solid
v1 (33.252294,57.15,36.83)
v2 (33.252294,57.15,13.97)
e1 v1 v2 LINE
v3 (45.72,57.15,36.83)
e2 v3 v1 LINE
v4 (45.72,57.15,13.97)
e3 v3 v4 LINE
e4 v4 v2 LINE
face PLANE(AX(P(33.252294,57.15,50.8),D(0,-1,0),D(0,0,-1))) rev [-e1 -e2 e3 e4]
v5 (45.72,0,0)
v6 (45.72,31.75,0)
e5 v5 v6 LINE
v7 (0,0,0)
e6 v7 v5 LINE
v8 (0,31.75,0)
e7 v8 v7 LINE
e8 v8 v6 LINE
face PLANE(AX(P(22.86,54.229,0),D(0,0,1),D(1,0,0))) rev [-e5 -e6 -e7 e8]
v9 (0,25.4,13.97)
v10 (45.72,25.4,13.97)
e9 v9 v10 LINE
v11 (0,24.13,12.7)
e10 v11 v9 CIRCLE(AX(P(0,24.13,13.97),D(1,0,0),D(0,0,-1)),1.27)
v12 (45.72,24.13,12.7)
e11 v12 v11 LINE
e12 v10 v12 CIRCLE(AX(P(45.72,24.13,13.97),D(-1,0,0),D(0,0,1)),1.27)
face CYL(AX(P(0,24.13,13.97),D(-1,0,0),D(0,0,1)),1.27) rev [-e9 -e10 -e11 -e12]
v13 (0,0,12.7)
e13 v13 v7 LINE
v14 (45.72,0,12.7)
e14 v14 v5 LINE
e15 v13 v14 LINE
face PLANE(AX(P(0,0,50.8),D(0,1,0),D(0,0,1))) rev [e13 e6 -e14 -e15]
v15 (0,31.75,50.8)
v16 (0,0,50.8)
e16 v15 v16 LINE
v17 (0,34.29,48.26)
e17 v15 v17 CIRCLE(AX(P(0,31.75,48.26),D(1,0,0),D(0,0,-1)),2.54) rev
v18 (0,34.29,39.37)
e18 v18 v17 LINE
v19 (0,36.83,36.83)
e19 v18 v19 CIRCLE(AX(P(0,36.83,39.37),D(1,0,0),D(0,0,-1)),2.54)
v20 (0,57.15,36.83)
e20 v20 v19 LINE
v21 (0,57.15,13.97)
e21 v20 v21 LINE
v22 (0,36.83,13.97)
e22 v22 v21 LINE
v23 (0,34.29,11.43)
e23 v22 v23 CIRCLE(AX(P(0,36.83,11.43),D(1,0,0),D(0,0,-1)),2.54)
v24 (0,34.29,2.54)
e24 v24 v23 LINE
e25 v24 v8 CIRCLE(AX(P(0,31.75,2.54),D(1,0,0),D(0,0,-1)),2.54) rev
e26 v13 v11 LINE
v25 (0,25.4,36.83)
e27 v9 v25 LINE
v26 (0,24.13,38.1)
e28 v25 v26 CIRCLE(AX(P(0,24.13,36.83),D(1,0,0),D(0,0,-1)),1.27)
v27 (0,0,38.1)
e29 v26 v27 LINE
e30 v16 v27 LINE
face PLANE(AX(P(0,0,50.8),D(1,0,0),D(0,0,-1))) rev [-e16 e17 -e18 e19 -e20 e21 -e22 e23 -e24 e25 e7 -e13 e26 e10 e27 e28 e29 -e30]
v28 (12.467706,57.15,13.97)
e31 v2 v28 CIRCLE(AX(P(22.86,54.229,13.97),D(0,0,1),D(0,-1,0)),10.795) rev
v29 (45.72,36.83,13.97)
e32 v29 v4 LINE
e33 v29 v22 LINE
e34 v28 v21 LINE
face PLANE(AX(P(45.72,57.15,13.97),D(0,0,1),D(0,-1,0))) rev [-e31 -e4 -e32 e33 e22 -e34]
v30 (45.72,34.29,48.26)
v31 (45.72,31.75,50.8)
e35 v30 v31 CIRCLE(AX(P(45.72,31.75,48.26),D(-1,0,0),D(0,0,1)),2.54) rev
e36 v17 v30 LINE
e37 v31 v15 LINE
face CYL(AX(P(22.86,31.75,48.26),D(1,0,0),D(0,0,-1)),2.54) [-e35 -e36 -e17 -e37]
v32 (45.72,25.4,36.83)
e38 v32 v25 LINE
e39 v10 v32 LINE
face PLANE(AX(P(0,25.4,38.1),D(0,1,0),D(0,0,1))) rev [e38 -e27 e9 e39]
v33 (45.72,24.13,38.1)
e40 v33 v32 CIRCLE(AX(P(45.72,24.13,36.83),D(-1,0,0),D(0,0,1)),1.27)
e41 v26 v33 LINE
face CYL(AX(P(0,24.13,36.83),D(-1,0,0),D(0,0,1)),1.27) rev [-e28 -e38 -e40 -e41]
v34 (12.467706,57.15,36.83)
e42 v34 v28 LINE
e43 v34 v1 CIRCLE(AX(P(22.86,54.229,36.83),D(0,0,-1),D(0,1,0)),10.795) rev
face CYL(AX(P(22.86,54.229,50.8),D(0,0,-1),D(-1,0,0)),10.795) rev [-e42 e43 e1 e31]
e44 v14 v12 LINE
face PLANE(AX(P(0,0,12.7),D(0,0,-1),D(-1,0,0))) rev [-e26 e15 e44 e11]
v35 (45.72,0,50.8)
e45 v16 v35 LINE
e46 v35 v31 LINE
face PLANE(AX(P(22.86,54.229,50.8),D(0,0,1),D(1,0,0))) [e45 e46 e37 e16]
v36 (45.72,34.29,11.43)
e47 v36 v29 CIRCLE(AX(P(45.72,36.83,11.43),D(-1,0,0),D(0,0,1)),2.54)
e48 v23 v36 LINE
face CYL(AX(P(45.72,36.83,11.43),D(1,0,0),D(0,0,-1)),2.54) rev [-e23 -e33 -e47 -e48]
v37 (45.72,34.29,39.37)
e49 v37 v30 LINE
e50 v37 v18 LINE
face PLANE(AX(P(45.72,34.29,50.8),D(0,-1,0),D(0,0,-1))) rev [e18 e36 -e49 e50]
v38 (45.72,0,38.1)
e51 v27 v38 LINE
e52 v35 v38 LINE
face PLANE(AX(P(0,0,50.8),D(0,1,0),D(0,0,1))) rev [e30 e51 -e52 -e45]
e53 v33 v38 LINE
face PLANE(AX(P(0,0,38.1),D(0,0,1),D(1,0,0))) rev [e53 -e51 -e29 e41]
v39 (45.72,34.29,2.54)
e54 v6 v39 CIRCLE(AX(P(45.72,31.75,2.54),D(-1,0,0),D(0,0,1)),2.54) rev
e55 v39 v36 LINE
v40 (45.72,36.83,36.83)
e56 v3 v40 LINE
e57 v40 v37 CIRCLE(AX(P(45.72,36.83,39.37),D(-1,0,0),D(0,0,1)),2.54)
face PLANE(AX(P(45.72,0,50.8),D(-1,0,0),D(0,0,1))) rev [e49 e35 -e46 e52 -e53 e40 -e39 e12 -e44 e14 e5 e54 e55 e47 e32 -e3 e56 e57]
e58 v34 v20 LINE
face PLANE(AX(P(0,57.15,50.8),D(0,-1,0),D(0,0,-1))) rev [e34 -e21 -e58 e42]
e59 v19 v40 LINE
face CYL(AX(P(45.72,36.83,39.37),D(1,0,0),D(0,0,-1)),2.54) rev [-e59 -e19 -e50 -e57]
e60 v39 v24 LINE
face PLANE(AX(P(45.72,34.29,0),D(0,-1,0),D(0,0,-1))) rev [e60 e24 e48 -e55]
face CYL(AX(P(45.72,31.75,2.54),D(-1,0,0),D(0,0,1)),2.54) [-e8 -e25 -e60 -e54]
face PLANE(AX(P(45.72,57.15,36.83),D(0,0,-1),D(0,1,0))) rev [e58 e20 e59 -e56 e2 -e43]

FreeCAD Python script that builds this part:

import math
import FreeCAD as App
import Part
import Sketcher
Q = App.Units.Quantity


def edges_at(feature, points):
    """Names of the edges that pass closest to the given points."""
    edges = feature.Shape.Edges
    near = lambda p: min(range(len(edges)), key=lambda i: edges[i].distToShape(Part.Vertex(*p))[0])
    return sorted({f"Edge{near(p) + 1}" for p in points})

doc = App.newDocument("Part")
body = doc.addObject("PartDesign::Body", "Body")

# Sketch on XY plane
sketch1 = body.newObject("Sketcher::SketchObject", "Sketch")
sketch1.AttachmentSupport = (doc.getObject("XY_Plane"), [""])
sketch1.MapMode = "FlatFace"
sketch1.addGeometry(Part.LineSegment(App.Vector(45.72, 57.15, 0), App.Vector(33.252294, 57.15, 0)), False)
sketch1.addGeometry(Part.ArcOfCircle(Part.Circle(App.Vector(22.86, 54.229, 0), App.Vector(0, 0, 1), 10.795), math.radians(164.300727), math.radians(375.699273)), False)
sketch1.addGeometry(Part.LineSegment(App.Vector(12.467706, 57.15, 0), App.Vector(0, 57.15, 0)), False)
sketch1.addGeometry(Part.LineSegment(App.Vector(0, 57.15, 0), App.Vector(0, 0, 0)), False)
sketch1.addGeometry(Part.LineSegment(App.Vector(0, 0, 0), App.Vector(45.72, 0, 0)), False)
sketch1.addGeometry(Part.LineSegment(App.Vector(45.72, 0, 0), App.Vector(45.72, 57.15, 0)), False)
sketch1.addConstraint(Sketcher.Constraint("Coincident", 0, 2, 1, 2))
sketch1.addConstraint(Sketcher.Constraint("Coincident", 1, 1, 2, 1))
sketch1.addConstraint(Sketcher.Constraint("Coincident", 2, 2, 3, 1))
sketch1.addConstraint(Sketcher.Constraint("Coincident", 3, 2, 4, 1))
sketch1.addConstraint(Sketcher.Constraint("Coincident", 4, 2, 5, 1))
sketch1.addConstraint(Sketcher.Constraint("Coincident", 5, 2, 0, 1))
sketch1.addConstraint(Sketcher.Constraint("Horizontal", 0))
sketch1.addConstraint(Sketcher.Constraint("Horizontal", 2))
sketch1.addConstraint(Sketcher.Constraint("Vertical", 3))
sketch1.addConstraint(Sketcher.Constraint("Horizontal", 4))
sketch1.addConstraint(Sketcher.Constraint("Vertical", 5))
sketch1.addConstraint(Sketcher.Constraint("Coincident", 3, 2, -1, 1))
sketch1.addConstraint(Sketcher.Constraint("Horizontal", 0, 2, 1, 1))
sketch1.addConstraint(Sketcher.Constraint("Equal", 0, 2))
sketch1.addConstraint(Sketcher.Constraint("DistanceX", 4, 1, 4, 2, Q("1.8 in")))
sketch1.addConstraint(Sketcher.Constraint("Radius", 1, Q("0.425 in")))
sketch1.addConstraint(Sketcher.Constraint("DistanceY", 3, 2, 3, 1, Q("2.25 in")))
sketch1.addConstraint(Sketcher.Constraint("DistanceY", -1, 1, 1, 3, Q("2.135 in")))
pad1 = body.newObject("PartDesign::Pad", "Pad")
pad1.Profile = sketch1
pad1.Length = Q("2 in")

# Sketch on YZ plane
sketch2 = body.newObject("Sketcher::SketchObject", "Sketch001")
sketch2.AttachmentSupport = (doc.getObject("YZ_Plane"), [""])
sketch2.MapMode = "FlatFace"
sketch2.AttachmentOffset = App.Placement(App.Vector(0, 0, 1.8 * 25.4), App.Rotation())
sketch2.addGeometry(Part.LineSegment(App.Vector(25.4, 38.1, 0), App.Vector(0, 38.1, 0)), False)
sketch2.addGeometry(Part.LineSegment(App.Vector(0, 38.1, 0), App.Vector(0, 12.7, 0)), False)
sketch2.addGeometry(Part.LineSegment(App.Vector(0, 12.7, 0), App.Vector(25.4, 12.7, 0)), False)
sketch2.addGeometry(Part.LineSegment(App.Vector(25.4, 12.7, 0), App.Vector(25.4, 38.1, 0)), False)
sketch2.addConstraint(Sketcher.Constraint("Coincident", 0, 2, 1, 1))
sketch2.addConstraint(Sketcher.Constraint("Coincident", 1, 2, 2, 1))
sketch2.addConstraint(Sketcher.Constraint("Coincident", 2, 2, 3, 1))
sketch2.addConstraint(Sketcher.Constraint("Coincident", 3, 2, 0, 1))
sketch2.addConstraint(Sketcher.Constraint("Horizontal", 0))
sketch2.addConstraint(Sketcher.Constraint("Vertical", 1))
sketch2.addConstraint(Sketcher.Constraint("Horizontal", 2))
sketch2.addConstraint(Sketcher.Constraint("Vertical", 3))
sketch2.addConstraint(Sketcher.Constraint("PointOnObject", 0, 2, -2))
sketch2.addConstraint(Sketcher.Constraint("Equal", 2, 1))
sketch2.addConstraint(Sketcher.Constraint("DistanceX", 0, 2, 0, 1, Q("1 in")))
sketch2.addConstraint(Sketcher.Constraint("DistanceY", -1, 1, 0, 2, Q("1.5 in")))
pocket1 = body.newObject("PartDesign::Pocket", "Pocket")
pocket1.Profile = sketch2
pocket1.Type = "ThroughAll"
doc.recompute()

fillet = body.newObject("PartDesign::Fillet", "Fillet")
fillet.Base = (pocket1, edges_at(pocket1, [(22.86, 25.4, 38.1), (22.86, 25.4, 12.7)]))
fillet.Radius = Q("0.05 in")

# Sketch on YZ plane
sketch3 = body.newObject("Sketcher::SketchObject", "Sketch002")
sketch3.AttachmentSupport = (doc.getObject("YZ_Plane"), [""])
sketch3.MapMode = "FlatFace"
sketch3.addGeometry(Part.LineSegment(App.Vector(57.15, 36.83, 0), App.Vector(34.29, 36.83, 0)), False)
sketch3.addGeometry(Part.LineSegment(App.Vector(34.29, 36.83, 0), App.Vector(34.29, 50.8, 0)), False)
sketch3.addGeometry(Part.LineSegment(App.Vector(34.29, 50.8, 0), App.Vector(57.15, 50.8, 0)), False)
sketch3.addGeometry(Part.LineSegment(App.Vector(57.15, 50.8, 0), App.Vector(57.15, 36.83, 0)), False)
sketch3.addGeometry(Part.LineSegment(App.Vector(57.15, 0, 0), App.Vector(34.29, 0, 0)), False)
sketch3.addGeometry(Part.LineSegment(App.Vector(34.29, 0, 0), App.Vector(34.29, 13.97, 0)), False)
sketch3.addGeometry(Part.LineSegment(App.Vector(34.29, 13.97, 0), App.Vector(57.15, 13.97, 0)), False)
sketch3.addGeometry(Part.LineSegment(App.Vector(57.15, 13.97, 0), App.Vector(57.15, 0, 0)), False)
sketch3.addConstraint(Sketcher.Constraint("Coincident", 0, 2, 1, 1))
sketch3.addConstraint(Sketcher.Constraint("Coincident", 1, 2, 2, 1))
sketch3.addConstraint(Sketcher.Constraint("Coincident", 2, 2, 3, 1))
sketch3.addConstraint(Sketcher.Constraint("Coincident", 3, 2, 0, 1))
sketch3.addConstraint(Sketcher.Constraint("Coincident", 4, 2, 5, 1))
sketch3.addConstraint(Sketcher.Constraint("Coincident", 5, 2, 6, 1))
sketch3.addConstraint(Sketcher.Constraint("Coincident", 6, 2, 7, 1))
sketch3.addConstraint(Sketcher.Constraint("Coincident", 7, 2, 4, 1))
sketch3.addConstraint(Sketcher.Constraint("Horizontal", 0))
sketch3.addConstraint(Sketcher.Constraint("Vertical", 1))
sketch3.addConstraint(Sketcher.Constraint("Horizontal", 2))
sketch3.addConstraint(Sketcher.Constraint("Vertical", 3))
sketch3.addConstraint(Sketcher.Constraint("Horizontal", 4))
sketch3.addConstraint(Sketcher.Constraint("Vertical", 5))
sketch3.addConstraint(Sketcher.Constraint("Horizontal", 6))
sketch3.addConstraint(Sketcher.Constraint("Vertical", 7))
sketch3.addConstraint(Sketcher.Constraint("PointOnObject", 4, 2, -1))
sketch3.addConstraint(Sketcher.Constraint("Vertical", 1, 2, 4, 2))
sketch3.addConstraint(Sketcher.Constraint("Vertical", 3, 2, 6, 2))
sketch3.addConstraint(Sketcher.Constraint("Equal", 3, 5))
sketch3.addConstraint(Sketcher.Constraint("DistanceX", 0, 2, 0, 1, Q("0.9 in")))
sketch3.addConstraint(Sketcher.Constraint("DistanceY", -1, 1, 1, 2, Q("2 in")))
sketch3.addConstraint(Sketcher.Constraint("DistanceY", 1, 1, 1, 2, Q("0.55 in")))
sketch3.addConstraint(Sketcher.Constraint("DistanceX", -1, 1, 0, 2, Q("1.35 in")))
pocket2 = body.newObject("PartDesign::Pocket", "Pocket001")
pocket2.Profile = sketch3
pocket2.Type = "ThroughAll"
pocket2.Reversed = True
doc.recompute()

fillet2 = body.newObject("PartDesign::Fillet", "Fillet001")
fillet2.Base = (pocket2, edges_at(pocket2, [
    (22.86, 34.29, 36.83),
    (22.86, 34.29, 50.8),
    (22.86, 34.29, 0),
    (22.86, 34.29, 13.97),
]))
fillet2.Radius = Q("0.1 in")

doc.recompute()
